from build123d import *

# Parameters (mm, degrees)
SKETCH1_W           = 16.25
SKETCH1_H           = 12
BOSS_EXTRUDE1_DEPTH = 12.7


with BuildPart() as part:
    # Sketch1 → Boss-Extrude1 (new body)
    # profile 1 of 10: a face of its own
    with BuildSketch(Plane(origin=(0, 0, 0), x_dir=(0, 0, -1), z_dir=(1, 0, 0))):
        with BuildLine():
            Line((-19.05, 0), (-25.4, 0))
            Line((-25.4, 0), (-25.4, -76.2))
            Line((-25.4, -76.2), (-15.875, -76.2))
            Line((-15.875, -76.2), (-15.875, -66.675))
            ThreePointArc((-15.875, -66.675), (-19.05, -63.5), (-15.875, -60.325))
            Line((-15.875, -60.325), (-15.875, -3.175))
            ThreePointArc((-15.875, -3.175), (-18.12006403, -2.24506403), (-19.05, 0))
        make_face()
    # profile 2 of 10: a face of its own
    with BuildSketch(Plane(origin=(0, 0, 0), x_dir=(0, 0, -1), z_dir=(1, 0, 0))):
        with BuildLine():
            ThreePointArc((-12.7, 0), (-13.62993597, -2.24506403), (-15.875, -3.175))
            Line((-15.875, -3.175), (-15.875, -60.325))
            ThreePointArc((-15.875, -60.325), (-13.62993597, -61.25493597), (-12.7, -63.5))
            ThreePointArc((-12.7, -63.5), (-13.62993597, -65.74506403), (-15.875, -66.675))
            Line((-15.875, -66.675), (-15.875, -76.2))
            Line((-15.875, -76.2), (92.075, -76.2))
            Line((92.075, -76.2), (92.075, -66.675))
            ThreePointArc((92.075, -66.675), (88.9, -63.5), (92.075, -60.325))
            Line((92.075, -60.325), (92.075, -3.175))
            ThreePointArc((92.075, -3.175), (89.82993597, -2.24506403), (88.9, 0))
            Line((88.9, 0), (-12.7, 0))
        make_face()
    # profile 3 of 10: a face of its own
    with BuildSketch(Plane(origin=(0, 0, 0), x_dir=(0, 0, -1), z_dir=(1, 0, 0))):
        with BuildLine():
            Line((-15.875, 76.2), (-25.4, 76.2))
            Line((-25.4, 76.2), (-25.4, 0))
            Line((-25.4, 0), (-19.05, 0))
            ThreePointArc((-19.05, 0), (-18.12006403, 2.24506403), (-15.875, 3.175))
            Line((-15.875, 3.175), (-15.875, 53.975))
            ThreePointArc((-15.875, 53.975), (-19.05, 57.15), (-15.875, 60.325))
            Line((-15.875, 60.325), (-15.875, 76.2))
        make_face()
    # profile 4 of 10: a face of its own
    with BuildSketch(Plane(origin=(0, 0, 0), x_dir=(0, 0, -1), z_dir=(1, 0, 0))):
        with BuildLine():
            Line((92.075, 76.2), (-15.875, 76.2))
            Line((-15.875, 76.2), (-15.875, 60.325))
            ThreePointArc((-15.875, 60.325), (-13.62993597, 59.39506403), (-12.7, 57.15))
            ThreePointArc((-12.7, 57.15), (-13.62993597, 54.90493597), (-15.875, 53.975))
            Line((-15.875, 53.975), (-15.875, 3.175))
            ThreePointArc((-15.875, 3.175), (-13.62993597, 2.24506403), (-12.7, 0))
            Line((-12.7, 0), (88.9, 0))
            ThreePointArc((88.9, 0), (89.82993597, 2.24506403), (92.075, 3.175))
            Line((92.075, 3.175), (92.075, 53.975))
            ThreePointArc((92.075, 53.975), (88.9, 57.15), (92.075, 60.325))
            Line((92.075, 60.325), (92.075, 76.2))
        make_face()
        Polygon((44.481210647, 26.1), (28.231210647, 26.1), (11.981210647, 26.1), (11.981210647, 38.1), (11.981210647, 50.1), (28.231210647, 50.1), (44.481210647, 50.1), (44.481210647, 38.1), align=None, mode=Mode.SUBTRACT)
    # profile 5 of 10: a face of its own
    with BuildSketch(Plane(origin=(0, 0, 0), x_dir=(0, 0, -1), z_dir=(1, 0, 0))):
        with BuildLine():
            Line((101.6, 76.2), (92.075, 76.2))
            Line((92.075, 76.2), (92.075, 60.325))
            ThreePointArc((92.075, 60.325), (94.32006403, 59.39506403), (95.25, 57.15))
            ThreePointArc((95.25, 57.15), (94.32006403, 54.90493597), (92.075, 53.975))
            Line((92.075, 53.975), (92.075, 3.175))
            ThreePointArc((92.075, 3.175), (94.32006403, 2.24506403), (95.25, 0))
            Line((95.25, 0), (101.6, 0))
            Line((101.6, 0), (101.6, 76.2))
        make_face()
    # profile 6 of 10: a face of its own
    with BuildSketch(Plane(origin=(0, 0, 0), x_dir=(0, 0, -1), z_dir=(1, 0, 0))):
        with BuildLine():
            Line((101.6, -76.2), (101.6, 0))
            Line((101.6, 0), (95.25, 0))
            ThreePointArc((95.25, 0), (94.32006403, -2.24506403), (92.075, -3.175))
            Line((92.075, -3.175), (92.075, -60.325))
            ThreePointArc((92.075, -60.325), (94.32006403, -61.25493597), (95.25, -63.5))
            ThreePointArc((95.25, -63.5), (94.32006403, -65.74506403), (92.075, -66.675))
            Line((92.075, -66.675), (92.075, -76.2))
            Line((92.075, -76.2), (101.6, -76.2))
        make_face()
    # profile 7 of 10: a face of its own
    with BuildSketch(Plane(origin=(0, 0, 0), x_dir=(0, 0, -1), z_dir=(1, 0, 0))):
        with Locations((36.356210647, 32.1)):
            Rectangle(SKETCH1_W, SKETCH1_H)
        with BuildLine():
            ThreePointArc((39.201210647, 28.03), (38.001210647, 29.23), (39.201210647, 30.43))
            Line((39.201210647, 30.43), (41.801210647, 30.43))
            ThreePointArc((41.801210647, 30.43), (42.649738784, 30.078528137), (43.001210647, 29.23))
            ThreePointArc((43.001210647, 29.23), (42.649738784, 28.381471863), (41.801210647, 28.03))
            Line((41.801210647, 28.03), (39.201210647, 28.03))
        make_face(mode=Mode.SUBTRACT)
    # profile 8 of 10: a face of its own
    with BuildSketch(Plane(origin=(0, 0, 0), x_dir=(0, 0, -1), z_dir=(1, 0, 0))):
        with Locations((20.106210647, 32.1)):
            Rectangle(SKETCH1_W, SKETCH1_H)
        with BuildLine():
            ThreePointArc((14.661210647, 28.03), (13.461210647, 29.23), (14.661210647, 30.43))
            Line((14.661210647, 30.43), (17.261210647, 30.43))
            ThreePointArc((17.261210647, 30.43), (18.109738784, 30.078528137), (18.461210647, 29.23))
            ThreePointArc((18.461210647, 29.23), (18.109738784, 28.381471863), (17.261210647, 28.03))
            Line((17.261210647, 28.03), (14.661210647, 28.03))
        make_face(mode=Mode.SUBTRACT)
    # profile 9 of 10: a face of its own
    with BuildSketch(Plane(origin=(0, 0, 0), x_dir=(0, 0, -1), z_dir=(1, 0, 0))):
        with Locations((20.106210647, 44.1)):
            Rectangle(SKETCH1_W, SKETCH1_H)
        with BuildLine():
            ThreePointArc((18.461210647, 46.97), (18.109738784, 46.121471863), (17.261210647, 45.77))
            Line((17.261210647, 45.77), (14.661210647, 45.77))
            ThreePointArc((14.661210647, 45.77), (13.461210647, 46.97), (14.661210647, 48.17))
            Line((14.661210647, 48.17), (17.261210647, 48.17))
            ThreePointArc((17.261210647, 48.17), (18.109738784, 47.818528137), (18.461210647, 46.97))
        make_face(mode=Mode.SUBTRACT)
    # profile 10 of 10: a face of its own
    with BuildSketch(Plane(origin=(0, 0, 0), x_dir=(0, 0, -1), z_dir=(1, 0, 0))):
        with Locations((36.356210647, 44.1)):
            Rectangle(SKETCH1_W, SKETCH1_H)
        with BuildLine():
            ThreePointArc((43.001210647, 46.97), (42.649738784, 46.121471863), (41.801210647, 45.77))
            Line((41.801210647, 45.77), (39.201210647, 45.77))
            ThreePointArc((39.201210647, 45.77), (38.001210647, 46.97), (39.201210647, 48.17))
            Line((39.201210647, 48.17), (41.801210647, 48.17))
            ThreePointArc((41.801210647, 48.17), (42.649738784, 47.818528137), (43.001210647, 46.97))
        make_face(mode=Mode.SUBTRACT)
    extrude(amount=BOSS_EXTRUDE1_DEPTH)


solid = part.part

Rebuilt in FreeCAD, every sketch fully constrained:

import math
import FreeCAD as App
import Part
import Sketcher

V = App.Vector
Q = App.Units.Quantity


def add_polygon(sketch, points):
    """Adds a closed chain of lines whose ends are joined by coincident constraints."""
    first, n = sketch.GeometryCount, len(points)
    for a, b in zip(points, points[1:] + points[:1]):
        sketch.addGeometry(Part.LineSegment(App.Vector(*a, 0), App.Vector(*b, 0)), False)
    for i in range(n):
        sketch.addConstraint(Sketcher.Constraint("Coincident", first + i, 2, first + (i + 1) % n, 1))

doc = App.newDocument("Part")
body = doc.addObject("PartDesign::Body", "Body")

# Sketch on YZ plane
sketch1 = body.newObject("Sketcher::SketchObject", "Sketch")
sketch1.AttachmentSupport = (doc.getObject("YZ_Plane"), [""])
sketch1.MapMode = "FlatFace"
add_polygon(sketch1, [(-76.2, 25.4), (-76.2, -101.6), (76.2, -101.6), (76.2, 25.4)])  # lines 0-3
sketch1.addGeometry(Part.ArcOfCircle(Part.Circle(V(-63.5, 15.9, 0), V(0, 0, 1), 3.2), math.radians(0), math.radians(180)), False)  # 4
sketch1.addGeometry(Part.ArcOfCircle(Part.Circle(V(-63.5, 15.9, 0), V(0, 0, 1), 3.2), math.radians(-90), math.radians(0)), False)  # 5
sketch1.addGeometry(Part.ArcOfCircle(Part.Circle(V(-63.5, 15.9, 0), V(0, 0, 1), 3.2), math.radians(-180), math.radians(-90)), False)  # 6
sketch1.addGeometry(Part.ArcOfCircle(Part.Circle(V(0, 15.9, 0), V(0, 0, 1), 3.2), math.radians(90), math.radians(180)), False)  # 7
sketch1.addGeometry(Part.ArcOfCircle(Part.Circle(V(0, 15.9, 0), V(0, 0, 1), 3.2), math.radians(0), math.radians(90)), False)  # 8
sketch1.addGeometry(Part.ArcOfCircle(Part.Circle(V(0, 15.9, 0), V(0, 0, 1), 3.2), math.radians(-90), math.radians(0)), False)  # 9
sketch1.addGeometry(Part.ArcOfCircle(Part.Circle(V(0, 15.9, 0), V(0, 0, 1), 3.2), math.radians(-180), math.radians(-90)), False)  # 10
sketch1.addGeometry(Part.ArcOfCircle(Part.Circle(V(57.1, 15.9, 0), V(0, 0, 1), 3.2), math.radians(0), math.radians(180)), False)  # 11
sketch1.addGeometry(Part.ArcOfCircle(Part.Circle(V(57.1, 15.9, 0), V(0, 0, 1), 3.2), math.radians(-90), math.radians(0)), False)  # 12
sketch1.addGeometry(Part.ArcOfCircle(Part.Circle(V(57.2, 15.9, 0), V(0, 0, 1), 3.2), math.radians(-180), math.radians(-90)), False)  # 13
sketch1.addGeometry(Part.ArcOfCircle(Part.Circle(V(0, -92.1, 0), V(0, 0, 1), 3.2), math.radians(90), math.radians(180)), False)  # 14
sketch1.addGeometry(Part.ArcOfCircle(Part.Circle(V(0, -92.1, 0), V(0, 0, 1), 3.2), math.radians(0), math.radians(90)), False)  # 15
sketch1.addGeometry(Part.ArcOfCircle(Part.Circle(V(0, -92.1, 0), V(0, 0, 1), 3.2), math.radians(-90), math.radians(0)), False)  # 16
sketch1.addGeometry(Part.ArcOfCircle(Part.Circle(V(0, -92.1, 0), V(0, 0, 1), 3.2), math.radians(-180), math.radians(-90)), False)  # 17
sketch1.addGeometry(Part.ArcOfCircle(Part.Circle(V(-63.5, -92.1, 0), V(0, 0, 1), 3.2), math.radians(0), math.radians(180)), False)  # 18
sketch1.addGeometry(Part.ArcOfCircle(Part.Circle(V(-63.5, -92.1, 0), V(0, 0, 1), 3.2), math.radians(-90), math.radians(0)), False)  # 19
sketch1.addGeometry(Part.ArcOfCircle(Part.Circle(V(-63.5, -92.1, 0), V(0, 0, 1), 3.2), math.radians(-180), math.radians(-90)), False)  # 20
sketch1.addGeometry(Part.ArcOfCircle(Part.Circle(V(57.1, -92.1, 0), V(0, 0, 1), 3.2), math.radians(0), math.radians(180)), False)  # 21
sketch1.addGeometry(Part.ArcOfCircle(Part.Circle(V(57.1, -92.1, 0), V(0, 0, 1), 3.2), math.radians(-90), math.radians(0)), False)  # 22
sketch1.addGeometry(Part.ArcOfCircle(Part.Circle(V(57.2, -92.1, 0), V(0, 0, 1), 3.2), math.radians(-180), math.radians(-90)), False)  # 23
sketch1.addGeometry(Part.ArcOfCircle(Part.Circle(V(47, -41.8, 0), V(0, 0, 1), 1.2), math.radians(-180), math.radians(-90)), False)  # 24
sketch1.addGeometry(Part.LineSegment(V(45.8, -41.8, 0), V(45.8, -39.2, 0)), False)  # 25
sketch1.addGeometry(Part.ArcOfCircle(Part.Circle(V(47, -39.2, 0), V(0, 0, 1), 1.2), math.radians(0), math.radians(180)), False)  # 26
sketch1.addGeometry(Part.LineSegment(V(48.2, -39.2, 0), V(48.2, -41.8, 0)), False)  # 27
sketch1.addGeometry(Part.ArcOfCircle(Part.Circle(V(47, -41.8, 0), V(0, 0, 1), 1.2), math.radians(-90), math.radians(0)), False)  # 28
sketch1.addGeometry(Part.LineSegment(V(45.8, -17.3, 0), V(45.8, -14.7, 0)), False)  # 29
sketch1.addGeometry(Part.ArcOfCircle(Part.Circle(V(47, -14.7, 0), V(0, 0, 1), 1.2), math.radians(0), math.radians(180)), False)  # 30
sketch1.addGeometry(Part.LineSegment(V(48.2, -14.7, 0), V(48.2, -17.3, 0)), False)  # 31
sketch1.addGeometry(Part.ArcOfCircle(Part.Circle(V(47, -17.3, 0), V(0, 0, 1), 1.2), math.radians(-90), math.radians(0)), False)  # 32
sketch1.addGeometry(Part.ArcOfCircle(Part.Circle(V(47, -17.3, 0), V(0, 0, 1), 1.2), math.radians(-180), math.radians(-90)), False)  # 33
sketch1.addGeometry(Part.LineSegment(V(30.4, -39.2, 0), V(30.4, -41.8, 0)), False)  # 34
sketch1.addGeometry(Part.ArcOfCircle(Part.Circle(V(29.2, -41.8, 0), V(0, 0, 1), 1.2), math.radians(-90), math.radians(0)), False)  # 35
sketch1.addGeometry(Part.ArcOfCircle(Part.Circle(V(29.2, -41.8, 0), V(0, 0, 1), 1.2), math.radians(-180), math.radians(-90)), False)  # 36
sketch1.addGeometry(Part.LineSegment(V(28, -41.8, 0), V(28, -39.2, 0)), False)  # 37
sketch1.addGeometry(Part.ArcOfCircle(Part.Circle(V(29.2, -39.2, 0), V(0, 0, 1), 1.2), math.radians(0), math.radians(180)), False)  # 38
sketch1.addGeometry(Part.LineSegment(V(30.4, -14.7, 0), V(30.4, -17.3, 0)), False)  # 39
sketch1.addGeometry(Part.ArcOfCircle(Part.Circle(V(29.2, -17.3, 0), V(0, 0, 1), 1.2), math.radians(-90), math.radians(0)), False)  # 40
sketch1.addGeometry(Part.ArcOfCircle(Part.Circle(V(29.2, -17.3, 0), V(0, 0, 1), 1.2), math.radians(-180), math.radians(-90)), False)  # 41
sketch1.addGeometry(Part.LineSegment(V(28, -17.3, 0), V(28, -14.7, 0)), False)  # 42
sketch1.addGeometry(Part.ArcOfCircle(Part.Circle(V(29.2, -14.7, 0), V(0, 0, 1), 1.2), math.radians(0), math.radians(180)), False)  # 43
sketch1.addConstraint([
    Sketcher.Constraint("Tangent", 4, 1, 5, 2),
    Sketcher.Constraint("Tangent", 5, 1, 6, 2),
    Sketcher.Constraint("Tangent", 6, 1, 4, 2),
    Sketcher.Constraint("Tangent", 7, 1, 8, 2),
    Sketcher.Constraint("Tangent", 8, 1, 9, 2),
    Sketcher.Constraint("Tangent", 9, 1, 10, 2),
    Sketcher.Constraint("Tangent", 10, 1, 7, 2),
    Sketcher.Constraint("Tangent", 11, 1, 12, 2),
    Sketcher.Constraint("Tangent", 12, 1, 13, 2),
    Sketcher.Constraint("Tangent", 13, 1, 11, 2),
    Sketcher.Constraint("Tangent", 14, 1, 15, 2),
    Sketcher.Constraint("Tangent", 15, 1, 16, 2),
    Sketcher.Constraint("Tangent", 16, 1, 17, 2),
    Sketcher.Constraint("Tangent", 17, 1, 14, 2),
    Sketcher.Constraint("Tangent", 18, 1, 19, 2),
    Sketcher.Constraint("Tangent", 19, 1, 20, 2),
    Sketcher.Constraint("Tangent", 20, 1, 18, 2),
    Sketcher.Constraint("Tangent", 21, 1, 22, 2),
    Sketcher.Constraint("Tangent", 22, 1, 23, 2),
    Sketcher.Constraint("Tangent", 23, 1, 21, 2),
    Sketcher.Constraint("Tangent", 24, 1, 25, 1),
    Sketcher.Constraint("Tangent", 25, 2, 26, 2),
    Sketcher.Constraint("Tangent", 26, 1, 27, 1),
    Sketcher.Constraint("Tangent", 27, 2, 28, 2),
    Sketcher.Constraint("Tangent", 28, 1, 24, 2),
    Sketcher.Constraint("Tangent", 29, 2, 30, 2),
    Sketcher.Constraint("Tangent", 30, 1, 31, 1),
    Sketcher.Constraint("Tangent", 31, 2, 32, 2),
    Sketcher.Constraint("Tangent", 32, 1, 33, 2),
    Sketcher.Constraint("Tangent", 33, 1, 29, 1),
    Sketcher.Constraint("Tangent", 34, 2, 35, 2),
    Sketcher.Constraint("Tangent", 35, 1, 36, 2),
    Sketcher.Constraint("Tangent", 36, 1, 37, 1),
    Sketcher.Constraint("Tangent", 37, 2, 38, 2),
    Sketcher.Constraint("Tangent", 38, 1, 34, 1),
    Sketcher.Constraint("Tangent", 39, 2, 40, 2),
    Sketcher.Constraint("Tangent", 40, 1, 41, 2),
    Sketcher.Constraint("Tangent", 41, 1, 42, 1),
    Sketcher.Constraint("Tangent", 42, 2, 43, 2),
    Sketcher.Constraint("Tangent", 43, 1, 39, 1),
    Sketcher.Constraint("Vertical", 0),
    Sketcher.Constraint("Horizontal", 1),
    Sketcher.Constraint("Vertical", 2),
    Sketcher.Constraint("Horizontal", 3),
    Sketcher.Constraint("Vertical", 25),
    Sketcher.Constraint("Vertical", 27),
    Sketcher.Constraint("Vertical", 29),
    Sketcher.Constraint("Vertical", 31),
    Sketcher.Constraint("Vertical", 34),
    Sketcher.Constraint("Vertical", 37),
    Sketcher.Constraint("Vertical", 39),
    Sketcher.Constraint("Vertical", 42),
    Sketcher.Constraint("Equal", 6, 7),
    Sketcher.Constraint("Equal", 7, 8),
    Sketcher.Constraint("Equal", 10, 11),
    Sketcher.Constraint("Equal", 13, 14),
    Sketcher.Constraint("Equal", 14, 15),
    Sketcher.Constraint("Equal", 17, 18),
    Sketcher.Constraint("Equal", 20, 21),
    Sketcher.Constraint("Equal", 24, 26),
    Sketcher.Constraint("Equal", 28, 30),
    Sketcher.Constraint("Equal", 30, 32),
    Sketcher.Constraint("Equal", 33, 35),
    Sketcher.Constraint("Equal", 35, 36),
    Sketcher.Constraint("Equal", 38, 40),
    Sketcher.Constraint("Equal", 40, 41),
    Sketcher.Constraint("Symmetric", 8, 1, 10, 1, -2),
    Sketcher.Constraint("Symmetric", 4, 1, 11, 1, -2),
    Sketcher.Constraint("Symmetric", 15, 1, 17, 1, -2),
    Sketcher.Constraint("Symmetric", 18, 1, 21, 1, -2),
    Sketcher.Constraint("PointOnObject", 7, 1, -2),
    Sketcher.Constraint("PointOnObject", 9, 1, -2),
    Sketcher.Constraint("PointOnObject", 14, 1, -2),
    Sketcher.Constraint("PointOnObject", 16, 1, -2),
    Sketcher.Constraint("Horizontal", 6, 3, 7, 3),
    Sketcher.Constraint("Horizontal", 10, 3, 11, 3),
    Sketcher.Constraint("Horizontal", 17, 3, 18, 3),
    Sketcher.Constraint("Horizontal", 20, 3, 21, 3),
    Sketcher.Constraint("Horizontal", 28, 3, 35, 3),
    Sketcher.Constraint("Horizontal", 26, 3, 38, 3),
    Sketcher.Constraint("Horizontal", 33, 3, 40, 3),
    Sketcher.Constraint("Horizontal", 30, 3, 43, 3),
    Sketcher.Constraint("Horizontal", 13, 3, 4, 1),
    Sketcher.Constraint("Horizontal", 4, 1, 6, 1),
    Sketcher.Constraint("Horizontal", 6, 1, 8, 1),
    Sketcher.Constraint("Horizontal", 11, 1, 13, 1),
    Sketcher.Constraint("Horizontal", 23, 3, 15, 1),
    Sketcher.Constraint("Horizontal", 17, 1, 18, 1),
    Sketcher.Constraint("Horizontal", 18, 1, 20, 1),
    Sketcher.Constraint("Horizontal", 21, 1, 23, 1),
    Sketcher.Constraint("Vertical", 6, 3, 18, 3),
    Sketcher.Constraint("Vertical", 28, 3, 30, 3),
    Sketcher.Constraint("Vertical", 38, 3, 40, 3),
    Sketcher.Constraint("Vertical", 20, 3, 5, 1),
    Sketcher.Constraint("Vertical", 23, 3, 12, 1),
    Sketcher.Constraint("Vertical", 5, 1, 19, 1),
    Sketcher.Constraint("Vertical", 12, 1, 22, 1),
    Sketcher.Constraint("Vertical", 33, 3, 28, 1),
    Sketcher.Constraint("Vertical", 28, 1, 32, 1),
    Sketcher.Constraint("Vertical", 43, 3, 35, 1),
    Sketcher.Constraint("Vertical", 35, 1, 40, 1),
    Sketcher.Constraint("Equal", 27, 29),
    Sketcher.Constraint("DistanceX", 1, 1, 1, 2, Q("6 in")),
    Sketcher.Constraint("DistanceY", 0, 2, 0, 1, Q("5 in")),
    Sketcher.Constraint("DistanceX", 0, 2, -1, 1, Q("3 in")),
    Sketcher.Constraint("DistanceY", 0, 2, -1, 1, Q("4 in")),
    Sketcher.Constraint("Radius", 4, Q("0.125 in")),
    Sketcher.Constraint("DistanceX", 4, 3, -1, 1, Q("2.5 in")),
    Sketcher.Constraint("DistanceY", -1, 1, 5, 1, Q("0.5 in")),
    Sketcher.Constraint("DistanceY", 14, 1, -1, 1, Q("3.5 in")),
    Sketcher.Constraint("Radius", 24, Q("1.2 mm")),
    Sketcher.Constraint("DistanceY", 25, 1, 25, 2, Q("2.6 mm")),
    Sketcher.Constraint("DistanceX", -1, 1, 24, 3, Q("46.97 mm")),
    Sketcher.Constraint("DistanceX", -1, 1, 35, 3, Q("29.23 mm")),
    Sketcher.Constraint("DistanceY", 24, 3, -1, 1, Q("41.801211 mm")),
    Sketcher.Constraint("DistanceY", 30, 3, -1, 1, Q("14.661211 mm")),
])
pad1 = body.newObject("PartDesign::Pad", "Pad")
pad1.Profile = sketch1
pad1.Length = Q("0.5 in")

doc.recompute()
